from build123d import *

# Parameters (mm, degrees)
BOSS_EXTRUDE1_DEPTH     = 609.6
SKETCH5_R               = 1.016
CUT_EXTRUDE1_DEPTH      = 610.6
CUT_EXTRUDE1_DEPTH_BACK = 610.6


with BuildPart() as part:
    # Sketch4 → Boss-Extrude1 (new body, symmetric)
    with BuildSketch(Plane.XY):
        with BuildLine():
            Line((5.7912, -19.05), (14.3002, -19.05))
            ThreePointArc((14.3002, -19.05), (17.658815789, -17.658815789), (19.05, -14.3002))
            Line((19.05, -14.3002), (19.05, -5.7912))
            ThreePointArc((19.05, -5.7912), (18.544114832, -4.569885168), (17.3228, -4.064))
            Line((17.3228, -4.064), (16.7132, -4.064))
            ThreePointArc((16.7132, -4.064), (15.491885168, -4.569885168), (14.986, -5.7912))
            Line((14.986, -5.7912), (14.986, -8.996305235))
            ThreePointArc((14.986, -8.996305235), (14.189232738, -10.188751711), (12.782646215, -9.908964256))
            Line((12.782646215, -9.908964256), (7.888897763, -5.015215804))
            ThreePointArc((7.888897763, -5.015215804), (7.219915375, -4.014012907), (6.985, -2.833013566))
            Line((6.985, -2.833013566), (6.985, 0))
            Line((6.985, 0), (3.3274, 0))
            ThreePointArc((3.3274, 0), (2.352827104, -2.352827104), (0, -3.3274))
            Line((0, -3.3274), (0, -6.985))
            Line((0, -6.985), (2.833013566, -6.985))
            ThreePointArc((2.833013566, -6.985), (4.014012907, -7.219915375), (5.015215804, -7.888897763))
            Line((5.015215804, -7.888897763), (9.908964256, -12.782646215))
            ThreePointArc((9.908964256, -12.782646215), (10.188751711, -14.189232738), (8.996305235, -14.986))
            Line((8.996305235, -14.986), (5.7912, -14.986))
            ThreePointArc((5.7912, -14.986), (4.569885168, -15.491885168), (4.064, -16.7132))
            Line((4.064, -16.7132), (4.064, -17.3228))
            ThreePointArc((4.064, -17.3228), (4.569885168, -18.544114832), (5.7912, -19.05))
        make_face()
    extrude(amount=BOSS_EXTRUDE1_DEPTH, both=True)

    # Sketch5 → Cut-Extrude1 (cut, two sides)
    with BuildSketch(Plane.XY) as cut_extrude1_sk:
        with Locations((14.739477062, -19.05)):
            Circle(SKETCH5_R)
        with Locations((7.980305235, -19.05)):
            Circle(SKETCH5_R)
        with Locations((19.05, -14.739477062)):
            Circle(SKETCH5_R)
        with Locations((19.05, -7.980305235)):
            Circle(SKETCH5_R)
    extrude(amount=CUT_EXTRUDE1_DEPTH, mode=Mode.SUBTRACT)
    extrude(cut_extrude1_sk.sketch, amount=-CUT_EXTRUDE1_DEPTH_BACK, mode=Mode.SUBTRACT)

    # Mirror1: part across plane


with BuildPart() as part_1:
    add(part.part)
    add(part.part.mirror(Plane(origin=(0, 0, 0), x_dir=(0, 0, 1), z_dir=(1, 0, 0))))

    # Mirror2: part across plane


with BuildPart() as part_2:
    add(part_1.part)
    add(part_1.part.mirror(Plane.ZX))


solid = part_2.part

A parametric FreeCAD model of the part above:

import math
import FreeCAD as App
import Part
import Sketcher
from FreeCAD import Vector
Q = App.Units.Quantity

doc = App.newDocument("Part")
body = doc.addObject("PartDesign::Body", "Body")

# Sketch on XY plane
sketch1 = doc.addObject("Sketcher::SketchObject", "Sketch")
body.addObject(sketch1)
sketch1.AttachmentSupport = (doc.XY_Plane, [""])
sketch1.MapMode = "FlatFace"
sketch1.addGeometry(Part.LineSegment(Vector(5.8, -19.1, 0), Vector(14.3, -19.1, 0)), False)
sketch1.addGeometry(Part.ArcOfCircle(Part.Circle(Vector(14.3, -14.3, 0), Vector(0, 0, 1), 4.7), math.radians(-90), math.radians(0)), False)
sketch1.addGeometry(Part.LineSegment(Vector(19.1, -14.3, 0), Vector(19.1, -5.8, 0)), False)
sketch1.addGeometry(Part.ArcOfCircle(Part.Circle(Vector(17.3, -5.8, 0), Vector(0, 0, 1), 1.7), math.radians(0), math.radians(90)), False)
sketch1.addGeometry(Part.LineSegment(Vector(17.3, -4.1, 0), Vector(16.7, -4.1, 0)), False)
sketch1.addGeometry(Part.ArcOfCircle(Part.Circle(Vector(16.7, -5.8, 0), Vector(0, 0, 1), 1.7), math.radians(90), math.radians(180)), False)
sketch1.addGeometry(Part.LineSegment(Vector(15, -5.8, 0), Vector(15, -9, 0)), False)
sketch1.addGeometry(Part.ArcOfCircle(Part.Circle(Vector(13.7, -9, 0), Vector(0, 0, 1), 1.3), math.radians(-135), math.radians(0)), False)
sketch1.addGeometry(Part.LineSegment(Vector(12.8, -9.9, 0), Vector(7.9, -5, 0)), False)
sketch1.addGeometry(Part.ArcOfCircle(Part.Circle(Vector(10.1, -2.8, 0), Vector(0, 0, 1), 3.1), math.radians(-180), math.radians(-135)), False)
sketch1.addGeometry(Part.LineSegment(Vector(7, -2.8, 0), Vector(7, 0, 0)), False)
sketch1.addGeometry(Part.LineSegment(Vector(7, 0, 0), Vector(3.3, 0, 0)), False)
sketch1.addGeometry(Part.ArcOfCircle(Part.Circle(Vector(0, 0, 0), Vector(0, 0, 1), 3.3), math.radians(-90), math.radians(0)), False)
sketch1.addGeometry(Part.LineSegment(Vector(0, -3.3, 0), Vector(0, -7, 0)), False)
sketch1.addGeometry(Part.LineSegment(Vector(0, -7, 0), Vector(2.8, -7, 0)), False)
sketch1.addGeometry(Part.ArcOfCircle(Part.Circle(Vector(2.8, -10.1, 0), Vector(0, 0, 1), 3.1), math.radians(45), math.radians(90)), False)
sketch1.addGeometry(Part.LineSegment(Vector(5, -7.9, 0), Vector(9.9, -12.8, 0)), False)
sketch1.addGeometry(Part.ArcOfCircle(Part.Circle(Vector(9, -13.7, 0), Vector(0, 0, 1), 1.3), math.radians(-90), math.radians(45)), False)
sketch1.addGeometry(Part.LineSegment(Vector(9, -15, 0), Vector(5.8, -15, 0)), False)
sketch1.addGeometry(Part.ArcOfCircle(Part.Circle(Vector(5.8, -16.7, 0), Vector(0, 0, 1), 1.7), math.radians(90), math.radians(180)), False)
sketch1.addGeometry(Part.LineSegment(Vector(4.1, -16.7, 0), Vector(4.1, -17.3, 0)), False)
sketch1.addGeometry(Part.ArcOfCircle(Part.Circle(Vector(5.8, -17.3, 0), Vector(0, 0, 1), 1.7), math.radians(-180), math.radians(-90)), False)
sketch1.addConstraint(Sketcher.Constraint("Tangent", 0, 2, 1, 1))
sketch1.addConstraint(Sketcher.Constraint("Tangent", 1, 2, 2, 1))
sketch1.addConstraint(Sketcher.Constraint("Tangent", 2, 2, 3, 1))
sketch1.addConstraint(Sketcher.Constraint("Tangent", 3, 2, 4, 1))
sketch1.addConstraint(Sketcher.Constraint("Tangent", 4, 2, 5, 1))
sketch1.addConstraint(Sketcher.Constraint("Tangent", 5, 2, 6, 1))
sketch1.addConstraint(Sketcher.Constraint("Tangent", 6, 2, 7, 2))
sketch1.addConstraint(Sketcher.Constraint("Tangent", 7, 1, 8, 1))
sketch1.addConstraint(Sketcher.Constraint("Tangent", 8, 2, 9, 2))
sketch1.addConstraint(Sketcher.Constraint("Tangent", 9, 1, 10, 1))
sketch1.addConstraint(Sketcher.Constraint("Coincident", 10, 2, 11, 1))
sketch1.addConstraint(Sketcher.Constraint("Coincident", 11, 2, 12, 2))
sketch1.addConstraint(Sketcher.Constraint("Coincident", 12, 1, 13, 1))
sketch1.addConstraint(Sketcher.Constraint("Coincident", 13, 2, 14, 1))
sketch1.addConstraint(Sketcher.Constraint("Tangent", 14, 2, 15, 2))
sketch1.addConstraint(Sketcher.Constraint("Tangent", 15, 1, 16, 1))
sketch1.addConstraint(Sketcher.Constraint("Tangent", 16, 2, 17, 2))
sketch1.addConstraint(Sketcher.Constraint("Tangent", 17, 1, 18, 1))
sketch1.addConstraint(Sketcher.Constraint("Tangent", 18, 2, 19, 1))
sketch1.addConstraint(Sketcher.Constraint("Tangent", 19, 2, 20, 1))
sketch1.addConstraint(Sketcher.Constraint("Tangent", 20, 2, 21, 1))
sketch1.addConstraint(Sketcher.Constraint("Tangent", 21, 2, 0, 1))
sketch1.addConstraint(Sketcher.Constraint("Horizontal", 0))
sketch1.addConstraint(Sketcher.Constraint("Vertical", 2))
sketch1.addConstraint(Sketcher.Constraint("Horizontal", 4))
sketch1.addConstraint(Sketcher.Constraint("Vertical", 6))
sketch1.addConstraint(Sketcher.Constraint("Vertical", 10))
sketch1.addConstraint(Sketcher.Constraint("Horizontal", 11))
sketch1.addConstraint(Sketcher.Constraint("Vertical", 13))
sketch1.addConstraint(Sketcher.Constraint("Horizontal", 14))
sketch1.addConstraint(Sketcher.Constraint("Horizontal", 18))
sketch1.addConstraint(Sketcher.Constraint("Vertical", 20))
sketch1.addConstraint(Sketcher.Constraint("Coincident", 12, 3, -1, 1))
sketch1.addConstraint(Sketcher.Constraint("Equal", 3, 5))
sketch1.addConstraint(Sketcher.Constraint("Equal", 9, 15))
sketch1.addConstraint(Sketcher.Constraint("Equal", 7, 17))
sketch1.addConstraint(Sketcher.Constraint("Equal", 5, 19))
sketch1.addConstraint(Sketcher.Constraint("Equal", 19, 21))
sketch1.addConstraint(Sketcher.Constraint("PointOnObject", 10, 2, -1))
sketch1.addConstraint(Sketcher.Constraint("PointOnObject", 12, 1, -2))
sketch1.addConstraint(Sketcher.Constraint("Parallel", 8, 16))
sketch1.addConstraint(Sketcher.Constraint("Equal", 0, 2))
sketch1.addConstraint(Sketcher.Constraint("Equal", 18, 6))
sketch1.addConstraint(Sketcher.Constraint("Equal", 14, 10))
sketch1.addConstraint(Sketcher.Constraint("Equal", 11, 13))
sketch1.addConstraint(Sketcher.Constraint("Equal", 4, 20))
sketch1.addConstraint(Sketcher.Constraint("Equal", 8, 16))
sketch1.addConstraint(Sketcher.Constraint("Radius", 1, Q("0.187 in")))
sketch1.addConstraint(Sketcher.Constraint("Radius", 3, Q("0.068 in")))
sketch1.addConstraint(Sketcher.Constraint("Radius", 12, Q("0.131 in")))
sketch1.addConstraint(Sketcher.Constraint("Radius", 9, Q("0.1215 in")))
sketch1.addConstraint(Sketcher.Constraint("DistanceX", 0, 1, 0, 2, Q("0.335 in")))
sketch1.addConstraint(Sketcher.Constraint("DistanceX", 4, 2, 4, 1, Q("0.024 in")))
sketch1.addConstraint(Sketcher.Constraint("DistanceX", 11, 2, 11, 1, Q("0.144 in")))
sketch1.addConstraint(Sketcher.Constraint("DistanceY", 0, 2, -1, 1, Q("0.75 in")))
sketch1.addConstraint(Sketcher.Constraint("DistanceX", 17, 3, 7, 3, Q("0.185 in")))
sketch1.addConstraint(Sketcher.Constraint("Radius", 7, Q("1.290695 mm")))
pad1 = doc.addObject("PartDesign::Pad", "Pad")
body.addObject(pad1)
pad1.Profile = sketch1
pad1.Length = Q("48 in")
pad1.Midplane = True

# Sketch on XY plane
sketch2 = doc.addObject("Sketcher::SketchObject", "Sketch001")
body.addObject(sketch2)
sketch2.AttachmentSupport = (doc.XY_Plane, [""])
sketch2.MapMode = "FlatFace"
sketch2.addGeometry(Part.Circle(Vector(14.7, -19.1, 0), Vector(0, 0, 1), 1), False)
sketch2.addGeometry(Part.Circle(Vector(8, -19.1, 0), Vector(0, 0, 1), 1), False)
sketch2.addGeometry(Part.Circle(Vector(19.1, -14.7, 0), Vector(0, 0, 1), 1), False)
sketch2.addGeometry(Part.Circle(Vector(19.1, -8, 0), Vector(0, 0, 1), 1), False)
sketch2.addConstraint(Sketcher.Constraint("Equal", 0, 1))
sketch2.addConstraint(Sketcher.Constraint("Equal", 1, 2))
sketch2.addConstraint(Sketcher.Constraint("Equal", 2, 3))
sketch2.addConstraint(Sketcher.Constraint("Horizontal", 0, 3, 1, 3))
sketch2.addConstraint(Sketcher.Constraint("Vertical", 2, 3, 3, 3))
sketch2.addConstraint(Sketcher.Constraint("Diameter", 0, Q("0.08 in")))
sketch2.addConstraint(Sketcher.Constraint("DistanceY", 0, 3, -1, 1, Q("0.75 in")))
sketch2.addConstraint(Sketcher.Constraint("DistanceX", -1, 1, 2, 3, Q("0.75 in")))
sketch2.addConstraint(Sketcher.Constraint("DistanceX", 1, 3, 0, 3, Q("6.759172 mm")))
sketch2.addConstraint(Sketcher.Constraint("DistanceY", 2, 3, 3, 3, Q("6.759172 mm")))
sketch2.addConstraint(Sketcher.Constraint("DistanceX", -1, 1, 0, 3, Q("14.739477 mm")))
sketch2.addConstraint(Sketcher.Constraint("DistanceY", 2, 3, -1, 1, Q("14.739477 mm")))
pocket1 = doc.addObject("PartDesign::Pocket", "Pocket")
body.addObject(pocket1)
pocket1.Profile = sketch2
pocket1.Type = "ThroughAll"
pocket1.Midplane = True
body2 = doc.addObject("PartDesign::Body", "Body001")
doc.recompute()

body2.BaseFeature = body
doc.recompute()

mirroring = doc.addObject("Part::Mirroring", "Mirroring")
mirroring.Source = body
mirroring.Base = Vector(0, 0, 0)
mirroring.Normal = Vector(1, 0, 0)
body3 = doc.addObject("PartDesign::Body", "Body002")
body3.BaseFeature = mirroring
boolean = doc.addObject("PartDesign::Boolean", "Boolean")
body2.addObject(boolean)
boolean.Type = "Fuse"
boolean.addObjects([body3])
doc.recompute()
body4 = doc.addObject("PartDesign::Body", "Body003")
doc.recompute()

body4.BaseFeature = body2
doc.recompute()

mirroring2 = doc.addObject("Part::Mirroring", "Mirroring001")
mirroring2.Source = body2
mirroring2.Base = Vector(0, 0, 0)
mirroring2.Normal = Vector(0, 1, 0)
body5 = doc.addObject("PartDesign::Body", "Body004")
body5.BaseFeature = mirroring2
boolean2 = doc.addObject("PartDesign::Boolean", "Boolean001")
body4.addObject(boolean2)
boolean2.Type = "Fuse"
boolean2.addObjects([body5])
doc.recompute()
mirroring.Visibility = False
mirroring2.Visibility = False

doc.recompute()
